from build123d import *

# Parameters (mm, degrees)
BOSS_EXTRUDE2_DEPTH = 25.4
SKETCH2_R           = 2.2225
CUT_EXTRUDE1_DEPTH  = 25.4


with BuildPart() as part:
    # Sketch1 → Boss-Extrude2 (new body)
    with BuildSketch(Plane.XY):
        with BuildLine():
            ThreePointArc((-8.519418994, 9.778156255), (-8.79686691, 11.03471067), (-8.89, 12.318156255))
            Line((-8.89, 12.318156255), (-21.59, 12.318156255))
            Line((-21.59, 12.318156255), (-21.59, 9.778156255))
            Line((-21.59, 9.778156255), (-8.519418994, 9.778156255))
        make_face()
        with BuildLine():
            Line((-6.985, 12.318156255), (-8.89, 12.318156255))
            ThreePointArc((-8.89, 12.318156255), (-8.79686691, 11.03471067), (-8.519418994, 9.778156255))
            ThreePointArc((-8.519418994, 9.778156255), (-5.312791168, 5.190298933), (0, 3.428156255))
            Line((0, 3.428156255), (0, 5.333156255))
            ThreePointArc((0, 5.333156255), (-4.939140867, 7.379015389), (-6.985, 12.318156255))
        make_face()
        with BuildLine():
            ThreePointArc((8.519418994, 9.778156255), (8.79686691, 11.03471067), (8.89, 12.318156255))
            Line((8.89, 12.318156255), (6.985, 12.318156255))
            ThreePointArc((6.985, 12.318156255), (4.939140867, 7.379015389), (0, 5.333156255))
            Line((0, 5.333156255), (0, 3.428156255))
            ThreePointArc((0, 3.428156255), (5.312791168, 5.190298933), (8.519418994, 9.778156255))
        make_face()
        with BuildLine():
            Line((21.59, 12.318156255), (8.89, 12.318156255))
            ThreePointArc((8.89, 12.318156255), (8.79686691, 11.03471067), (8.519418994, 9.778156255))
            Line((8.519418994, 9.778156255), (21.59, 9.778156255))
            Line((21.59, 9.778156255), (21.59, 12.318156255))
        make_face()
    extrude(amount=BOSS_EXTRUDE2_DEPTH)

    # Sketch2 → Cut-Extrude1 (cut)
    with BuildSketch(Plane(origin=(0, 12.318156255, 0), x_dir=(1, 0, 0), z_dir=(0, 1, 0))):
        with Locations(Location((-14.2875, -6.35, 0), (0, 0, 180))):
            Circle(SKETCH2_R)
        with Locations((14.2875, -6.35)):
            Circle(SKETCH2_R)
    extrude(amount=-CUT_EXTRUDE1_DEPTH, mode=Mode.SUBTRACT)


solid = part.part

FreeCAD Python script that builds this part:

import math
import FreeCAD as App
import Part
import Sketcher
Q = App.Units.Quantity

doc = App.newDocument("Part")
body = doc.addObject("PartDesign::Body", "Body")

# Sketch on XY plane
sketch1 = body.newObject("Sketcher::SketchObject", "Sketch")
sketch1.AttachmentSupport = (doc.getObject("XY_Plane"), [""])
sketch1.MapMode = "FlatFace"
sketch1.addGeometry([
    Part.LineSegment(App.Vector(-21.6, 12.3, 0), App.Vector(-21.6, 9.8, 0)),  # 0
    Part.LineSegment(App.Vector(-21.6, 9.8, 0), App.Vector(-8.5, 9.8, 0)),  # 1
    Part.ArcOfCircle(Part.Circle(App.Vector(0, 12.3, 0), App.Vector(0, 0, 1), 8.9), math.radians(-163), math.radians(-90)),  # 2
    Part.ArcOfCircle(Part.Circle(App.Vector(0, 12.3, 0), App.Vector(0, 0, 1), 8.9), math.radians(-90), math.radians(-17)),  # 3
    Part.LineSegment(App.Vector(8.5, 9.8, 0), App.Vector(21.6, 9.8, 0)),  # 4
    Part.LineSegment(App.Vector(21.6, 9.8, 0), App.Vector(21.6, 12.3, 0)),  # 5
    Part.LineSegment(App.Vector(21.6, 12.3, 0), App.Vector(7, 12.3, 0)),  # 6
    Part.ArcOfCircle(Part.Circle(App.Vector(0, 12.3, 0), App.Vector(0, 0, 1), 7), math.radians(-90), math.radians(0)),  # 7
    Part.ArcOfCircle(Part.Circle(App.Vector(0, 12.3, 0), App.Vector(0, 0, 1), 7), math.radians(180), math.radians(270)),  # 8
    Part.LineSegment(App.Vector(-7, 12.3, 0), App.Vector(-21.6, 12.3, 0)),  # 9
], False)
sketch1.addConstraint([
    Sketcher.Constraint("Coincident", 0, 2, 1, 1),
    Sketcher.Constraint("Coincident", 1, 2, 2, 1),
    Sketcher.Constraint("Tangent", 2, 2, 3, 1),
    Sketcher.Constraint("Coincident", 3, 2, 4, 1),
    Sketcher.Constraint("Coincident", 4, 2, 5, 1),
    Sketcher.Constraint("Coincident", 5, 2, 6, 1),
    Sketcher.Constraint("Coincident", 6, 2, 7, 2),
    Sketcher.Constraint("Tangent", 7, 1, 8, 2),
    Sketcher.Constraint("Coincident", 8, 1, 9, 1),
    Sketcher.Constraint("Coincident", 9, 2, 0, 1),
    Sketcher.Constraint("Vertical", 0),
    Sketcher.Constraint("Horizontal", 1),
    Sketcher.Constraint("Horizontal", 4),
    Sketcher.Constraint("Vertical", 5),
    Sketcher.Constraint("Horizontal", 6),
    Sketcher.Constraint("Horizontal", 9),
    Sketcher.Constraint("Coincident", 7, 3, 2, 3),
    Sketcher.Constraint("Equal", 2, 3),
    Sketcher.Constraint("Equal", 7, 8),
    Sketcher.Constraint("Symmetric", 1, 2, 3, 2, -2),
    Sketcher.Constraint("Symmetric", 5, 2, 9, 2, -2),
    Sketcher.Constraint("PointOnObject", 2, 2, -2),
    Sketcher.Constraint("PointOnObject", 7, 1, -2),
    Sketcher.Constraint("Horizontal", 8, 3, 5, 2),
    Sketcher.Constraint("Radius", 2, Q("0.35 in")),
    Sketcher.Constraint("DistanceY", 0, 2, 0, 1, Q("0.1 in")),
    Sketcher.Constraint("Radius", 7, Q("0.275 in")),
    Sketcher.Constraint("DistanceX", 6, 2, 6, 1, Q("0.575 in")),
    Sketcher.Constraint("DistanceY", -1, 1, 2, 3, 12.318156),
])
pad1 = body.newObject("PartDesign::Pad", "Pad")
pad1.Profile = sketch1
pad1.Length = Q("1 in")

# Sketch on XZ plane
sketch2 = body.newObject("Sketcher::SketchObject", "Sketch001")
sketch2.AttachmentSupport = (doc.getObject("XZ_Plane"), [""])
sketch2.MapMode = "FlatFace"
sketch2.AttachmentOffset = App.Placement(App.Vector(0, 0, -12.318156), App.Rotation())
sketch2.addGeometry([
    Part.Circle(App.Vector(-14.3, 6.3, 0), App.Vector(0, 0, 1), 2.2),
    Part.Circle(App.Vector(14.3, 6.3, 0), App.Vector(0, 0, 1), 2.2),
], False)
sketch2.addConstraint([
    Sketcher.Constraint("Equal", 0, 1),
    Sketcher.Constraint("Symmetric", 0, 3, 1, 3, -2),
    Sketcher.Constraint("Diameter", 0, Q("0.175 in")),
    Sketcher.Constraint("DistanceY", -1, 1, 0, 3, Q("0.25 in")),
    Sketcher.Constraint("DistanceX", 0, 3, -1, 1, Q("0.5625 in")),
])
pocket1 = body.newObject("PartDesign::Pocket", "Pocket")
pocket1.Profile = sketch2
pocket1.Length = Q("1 in")
pocket1.Reversed = True

doc.recompute()
